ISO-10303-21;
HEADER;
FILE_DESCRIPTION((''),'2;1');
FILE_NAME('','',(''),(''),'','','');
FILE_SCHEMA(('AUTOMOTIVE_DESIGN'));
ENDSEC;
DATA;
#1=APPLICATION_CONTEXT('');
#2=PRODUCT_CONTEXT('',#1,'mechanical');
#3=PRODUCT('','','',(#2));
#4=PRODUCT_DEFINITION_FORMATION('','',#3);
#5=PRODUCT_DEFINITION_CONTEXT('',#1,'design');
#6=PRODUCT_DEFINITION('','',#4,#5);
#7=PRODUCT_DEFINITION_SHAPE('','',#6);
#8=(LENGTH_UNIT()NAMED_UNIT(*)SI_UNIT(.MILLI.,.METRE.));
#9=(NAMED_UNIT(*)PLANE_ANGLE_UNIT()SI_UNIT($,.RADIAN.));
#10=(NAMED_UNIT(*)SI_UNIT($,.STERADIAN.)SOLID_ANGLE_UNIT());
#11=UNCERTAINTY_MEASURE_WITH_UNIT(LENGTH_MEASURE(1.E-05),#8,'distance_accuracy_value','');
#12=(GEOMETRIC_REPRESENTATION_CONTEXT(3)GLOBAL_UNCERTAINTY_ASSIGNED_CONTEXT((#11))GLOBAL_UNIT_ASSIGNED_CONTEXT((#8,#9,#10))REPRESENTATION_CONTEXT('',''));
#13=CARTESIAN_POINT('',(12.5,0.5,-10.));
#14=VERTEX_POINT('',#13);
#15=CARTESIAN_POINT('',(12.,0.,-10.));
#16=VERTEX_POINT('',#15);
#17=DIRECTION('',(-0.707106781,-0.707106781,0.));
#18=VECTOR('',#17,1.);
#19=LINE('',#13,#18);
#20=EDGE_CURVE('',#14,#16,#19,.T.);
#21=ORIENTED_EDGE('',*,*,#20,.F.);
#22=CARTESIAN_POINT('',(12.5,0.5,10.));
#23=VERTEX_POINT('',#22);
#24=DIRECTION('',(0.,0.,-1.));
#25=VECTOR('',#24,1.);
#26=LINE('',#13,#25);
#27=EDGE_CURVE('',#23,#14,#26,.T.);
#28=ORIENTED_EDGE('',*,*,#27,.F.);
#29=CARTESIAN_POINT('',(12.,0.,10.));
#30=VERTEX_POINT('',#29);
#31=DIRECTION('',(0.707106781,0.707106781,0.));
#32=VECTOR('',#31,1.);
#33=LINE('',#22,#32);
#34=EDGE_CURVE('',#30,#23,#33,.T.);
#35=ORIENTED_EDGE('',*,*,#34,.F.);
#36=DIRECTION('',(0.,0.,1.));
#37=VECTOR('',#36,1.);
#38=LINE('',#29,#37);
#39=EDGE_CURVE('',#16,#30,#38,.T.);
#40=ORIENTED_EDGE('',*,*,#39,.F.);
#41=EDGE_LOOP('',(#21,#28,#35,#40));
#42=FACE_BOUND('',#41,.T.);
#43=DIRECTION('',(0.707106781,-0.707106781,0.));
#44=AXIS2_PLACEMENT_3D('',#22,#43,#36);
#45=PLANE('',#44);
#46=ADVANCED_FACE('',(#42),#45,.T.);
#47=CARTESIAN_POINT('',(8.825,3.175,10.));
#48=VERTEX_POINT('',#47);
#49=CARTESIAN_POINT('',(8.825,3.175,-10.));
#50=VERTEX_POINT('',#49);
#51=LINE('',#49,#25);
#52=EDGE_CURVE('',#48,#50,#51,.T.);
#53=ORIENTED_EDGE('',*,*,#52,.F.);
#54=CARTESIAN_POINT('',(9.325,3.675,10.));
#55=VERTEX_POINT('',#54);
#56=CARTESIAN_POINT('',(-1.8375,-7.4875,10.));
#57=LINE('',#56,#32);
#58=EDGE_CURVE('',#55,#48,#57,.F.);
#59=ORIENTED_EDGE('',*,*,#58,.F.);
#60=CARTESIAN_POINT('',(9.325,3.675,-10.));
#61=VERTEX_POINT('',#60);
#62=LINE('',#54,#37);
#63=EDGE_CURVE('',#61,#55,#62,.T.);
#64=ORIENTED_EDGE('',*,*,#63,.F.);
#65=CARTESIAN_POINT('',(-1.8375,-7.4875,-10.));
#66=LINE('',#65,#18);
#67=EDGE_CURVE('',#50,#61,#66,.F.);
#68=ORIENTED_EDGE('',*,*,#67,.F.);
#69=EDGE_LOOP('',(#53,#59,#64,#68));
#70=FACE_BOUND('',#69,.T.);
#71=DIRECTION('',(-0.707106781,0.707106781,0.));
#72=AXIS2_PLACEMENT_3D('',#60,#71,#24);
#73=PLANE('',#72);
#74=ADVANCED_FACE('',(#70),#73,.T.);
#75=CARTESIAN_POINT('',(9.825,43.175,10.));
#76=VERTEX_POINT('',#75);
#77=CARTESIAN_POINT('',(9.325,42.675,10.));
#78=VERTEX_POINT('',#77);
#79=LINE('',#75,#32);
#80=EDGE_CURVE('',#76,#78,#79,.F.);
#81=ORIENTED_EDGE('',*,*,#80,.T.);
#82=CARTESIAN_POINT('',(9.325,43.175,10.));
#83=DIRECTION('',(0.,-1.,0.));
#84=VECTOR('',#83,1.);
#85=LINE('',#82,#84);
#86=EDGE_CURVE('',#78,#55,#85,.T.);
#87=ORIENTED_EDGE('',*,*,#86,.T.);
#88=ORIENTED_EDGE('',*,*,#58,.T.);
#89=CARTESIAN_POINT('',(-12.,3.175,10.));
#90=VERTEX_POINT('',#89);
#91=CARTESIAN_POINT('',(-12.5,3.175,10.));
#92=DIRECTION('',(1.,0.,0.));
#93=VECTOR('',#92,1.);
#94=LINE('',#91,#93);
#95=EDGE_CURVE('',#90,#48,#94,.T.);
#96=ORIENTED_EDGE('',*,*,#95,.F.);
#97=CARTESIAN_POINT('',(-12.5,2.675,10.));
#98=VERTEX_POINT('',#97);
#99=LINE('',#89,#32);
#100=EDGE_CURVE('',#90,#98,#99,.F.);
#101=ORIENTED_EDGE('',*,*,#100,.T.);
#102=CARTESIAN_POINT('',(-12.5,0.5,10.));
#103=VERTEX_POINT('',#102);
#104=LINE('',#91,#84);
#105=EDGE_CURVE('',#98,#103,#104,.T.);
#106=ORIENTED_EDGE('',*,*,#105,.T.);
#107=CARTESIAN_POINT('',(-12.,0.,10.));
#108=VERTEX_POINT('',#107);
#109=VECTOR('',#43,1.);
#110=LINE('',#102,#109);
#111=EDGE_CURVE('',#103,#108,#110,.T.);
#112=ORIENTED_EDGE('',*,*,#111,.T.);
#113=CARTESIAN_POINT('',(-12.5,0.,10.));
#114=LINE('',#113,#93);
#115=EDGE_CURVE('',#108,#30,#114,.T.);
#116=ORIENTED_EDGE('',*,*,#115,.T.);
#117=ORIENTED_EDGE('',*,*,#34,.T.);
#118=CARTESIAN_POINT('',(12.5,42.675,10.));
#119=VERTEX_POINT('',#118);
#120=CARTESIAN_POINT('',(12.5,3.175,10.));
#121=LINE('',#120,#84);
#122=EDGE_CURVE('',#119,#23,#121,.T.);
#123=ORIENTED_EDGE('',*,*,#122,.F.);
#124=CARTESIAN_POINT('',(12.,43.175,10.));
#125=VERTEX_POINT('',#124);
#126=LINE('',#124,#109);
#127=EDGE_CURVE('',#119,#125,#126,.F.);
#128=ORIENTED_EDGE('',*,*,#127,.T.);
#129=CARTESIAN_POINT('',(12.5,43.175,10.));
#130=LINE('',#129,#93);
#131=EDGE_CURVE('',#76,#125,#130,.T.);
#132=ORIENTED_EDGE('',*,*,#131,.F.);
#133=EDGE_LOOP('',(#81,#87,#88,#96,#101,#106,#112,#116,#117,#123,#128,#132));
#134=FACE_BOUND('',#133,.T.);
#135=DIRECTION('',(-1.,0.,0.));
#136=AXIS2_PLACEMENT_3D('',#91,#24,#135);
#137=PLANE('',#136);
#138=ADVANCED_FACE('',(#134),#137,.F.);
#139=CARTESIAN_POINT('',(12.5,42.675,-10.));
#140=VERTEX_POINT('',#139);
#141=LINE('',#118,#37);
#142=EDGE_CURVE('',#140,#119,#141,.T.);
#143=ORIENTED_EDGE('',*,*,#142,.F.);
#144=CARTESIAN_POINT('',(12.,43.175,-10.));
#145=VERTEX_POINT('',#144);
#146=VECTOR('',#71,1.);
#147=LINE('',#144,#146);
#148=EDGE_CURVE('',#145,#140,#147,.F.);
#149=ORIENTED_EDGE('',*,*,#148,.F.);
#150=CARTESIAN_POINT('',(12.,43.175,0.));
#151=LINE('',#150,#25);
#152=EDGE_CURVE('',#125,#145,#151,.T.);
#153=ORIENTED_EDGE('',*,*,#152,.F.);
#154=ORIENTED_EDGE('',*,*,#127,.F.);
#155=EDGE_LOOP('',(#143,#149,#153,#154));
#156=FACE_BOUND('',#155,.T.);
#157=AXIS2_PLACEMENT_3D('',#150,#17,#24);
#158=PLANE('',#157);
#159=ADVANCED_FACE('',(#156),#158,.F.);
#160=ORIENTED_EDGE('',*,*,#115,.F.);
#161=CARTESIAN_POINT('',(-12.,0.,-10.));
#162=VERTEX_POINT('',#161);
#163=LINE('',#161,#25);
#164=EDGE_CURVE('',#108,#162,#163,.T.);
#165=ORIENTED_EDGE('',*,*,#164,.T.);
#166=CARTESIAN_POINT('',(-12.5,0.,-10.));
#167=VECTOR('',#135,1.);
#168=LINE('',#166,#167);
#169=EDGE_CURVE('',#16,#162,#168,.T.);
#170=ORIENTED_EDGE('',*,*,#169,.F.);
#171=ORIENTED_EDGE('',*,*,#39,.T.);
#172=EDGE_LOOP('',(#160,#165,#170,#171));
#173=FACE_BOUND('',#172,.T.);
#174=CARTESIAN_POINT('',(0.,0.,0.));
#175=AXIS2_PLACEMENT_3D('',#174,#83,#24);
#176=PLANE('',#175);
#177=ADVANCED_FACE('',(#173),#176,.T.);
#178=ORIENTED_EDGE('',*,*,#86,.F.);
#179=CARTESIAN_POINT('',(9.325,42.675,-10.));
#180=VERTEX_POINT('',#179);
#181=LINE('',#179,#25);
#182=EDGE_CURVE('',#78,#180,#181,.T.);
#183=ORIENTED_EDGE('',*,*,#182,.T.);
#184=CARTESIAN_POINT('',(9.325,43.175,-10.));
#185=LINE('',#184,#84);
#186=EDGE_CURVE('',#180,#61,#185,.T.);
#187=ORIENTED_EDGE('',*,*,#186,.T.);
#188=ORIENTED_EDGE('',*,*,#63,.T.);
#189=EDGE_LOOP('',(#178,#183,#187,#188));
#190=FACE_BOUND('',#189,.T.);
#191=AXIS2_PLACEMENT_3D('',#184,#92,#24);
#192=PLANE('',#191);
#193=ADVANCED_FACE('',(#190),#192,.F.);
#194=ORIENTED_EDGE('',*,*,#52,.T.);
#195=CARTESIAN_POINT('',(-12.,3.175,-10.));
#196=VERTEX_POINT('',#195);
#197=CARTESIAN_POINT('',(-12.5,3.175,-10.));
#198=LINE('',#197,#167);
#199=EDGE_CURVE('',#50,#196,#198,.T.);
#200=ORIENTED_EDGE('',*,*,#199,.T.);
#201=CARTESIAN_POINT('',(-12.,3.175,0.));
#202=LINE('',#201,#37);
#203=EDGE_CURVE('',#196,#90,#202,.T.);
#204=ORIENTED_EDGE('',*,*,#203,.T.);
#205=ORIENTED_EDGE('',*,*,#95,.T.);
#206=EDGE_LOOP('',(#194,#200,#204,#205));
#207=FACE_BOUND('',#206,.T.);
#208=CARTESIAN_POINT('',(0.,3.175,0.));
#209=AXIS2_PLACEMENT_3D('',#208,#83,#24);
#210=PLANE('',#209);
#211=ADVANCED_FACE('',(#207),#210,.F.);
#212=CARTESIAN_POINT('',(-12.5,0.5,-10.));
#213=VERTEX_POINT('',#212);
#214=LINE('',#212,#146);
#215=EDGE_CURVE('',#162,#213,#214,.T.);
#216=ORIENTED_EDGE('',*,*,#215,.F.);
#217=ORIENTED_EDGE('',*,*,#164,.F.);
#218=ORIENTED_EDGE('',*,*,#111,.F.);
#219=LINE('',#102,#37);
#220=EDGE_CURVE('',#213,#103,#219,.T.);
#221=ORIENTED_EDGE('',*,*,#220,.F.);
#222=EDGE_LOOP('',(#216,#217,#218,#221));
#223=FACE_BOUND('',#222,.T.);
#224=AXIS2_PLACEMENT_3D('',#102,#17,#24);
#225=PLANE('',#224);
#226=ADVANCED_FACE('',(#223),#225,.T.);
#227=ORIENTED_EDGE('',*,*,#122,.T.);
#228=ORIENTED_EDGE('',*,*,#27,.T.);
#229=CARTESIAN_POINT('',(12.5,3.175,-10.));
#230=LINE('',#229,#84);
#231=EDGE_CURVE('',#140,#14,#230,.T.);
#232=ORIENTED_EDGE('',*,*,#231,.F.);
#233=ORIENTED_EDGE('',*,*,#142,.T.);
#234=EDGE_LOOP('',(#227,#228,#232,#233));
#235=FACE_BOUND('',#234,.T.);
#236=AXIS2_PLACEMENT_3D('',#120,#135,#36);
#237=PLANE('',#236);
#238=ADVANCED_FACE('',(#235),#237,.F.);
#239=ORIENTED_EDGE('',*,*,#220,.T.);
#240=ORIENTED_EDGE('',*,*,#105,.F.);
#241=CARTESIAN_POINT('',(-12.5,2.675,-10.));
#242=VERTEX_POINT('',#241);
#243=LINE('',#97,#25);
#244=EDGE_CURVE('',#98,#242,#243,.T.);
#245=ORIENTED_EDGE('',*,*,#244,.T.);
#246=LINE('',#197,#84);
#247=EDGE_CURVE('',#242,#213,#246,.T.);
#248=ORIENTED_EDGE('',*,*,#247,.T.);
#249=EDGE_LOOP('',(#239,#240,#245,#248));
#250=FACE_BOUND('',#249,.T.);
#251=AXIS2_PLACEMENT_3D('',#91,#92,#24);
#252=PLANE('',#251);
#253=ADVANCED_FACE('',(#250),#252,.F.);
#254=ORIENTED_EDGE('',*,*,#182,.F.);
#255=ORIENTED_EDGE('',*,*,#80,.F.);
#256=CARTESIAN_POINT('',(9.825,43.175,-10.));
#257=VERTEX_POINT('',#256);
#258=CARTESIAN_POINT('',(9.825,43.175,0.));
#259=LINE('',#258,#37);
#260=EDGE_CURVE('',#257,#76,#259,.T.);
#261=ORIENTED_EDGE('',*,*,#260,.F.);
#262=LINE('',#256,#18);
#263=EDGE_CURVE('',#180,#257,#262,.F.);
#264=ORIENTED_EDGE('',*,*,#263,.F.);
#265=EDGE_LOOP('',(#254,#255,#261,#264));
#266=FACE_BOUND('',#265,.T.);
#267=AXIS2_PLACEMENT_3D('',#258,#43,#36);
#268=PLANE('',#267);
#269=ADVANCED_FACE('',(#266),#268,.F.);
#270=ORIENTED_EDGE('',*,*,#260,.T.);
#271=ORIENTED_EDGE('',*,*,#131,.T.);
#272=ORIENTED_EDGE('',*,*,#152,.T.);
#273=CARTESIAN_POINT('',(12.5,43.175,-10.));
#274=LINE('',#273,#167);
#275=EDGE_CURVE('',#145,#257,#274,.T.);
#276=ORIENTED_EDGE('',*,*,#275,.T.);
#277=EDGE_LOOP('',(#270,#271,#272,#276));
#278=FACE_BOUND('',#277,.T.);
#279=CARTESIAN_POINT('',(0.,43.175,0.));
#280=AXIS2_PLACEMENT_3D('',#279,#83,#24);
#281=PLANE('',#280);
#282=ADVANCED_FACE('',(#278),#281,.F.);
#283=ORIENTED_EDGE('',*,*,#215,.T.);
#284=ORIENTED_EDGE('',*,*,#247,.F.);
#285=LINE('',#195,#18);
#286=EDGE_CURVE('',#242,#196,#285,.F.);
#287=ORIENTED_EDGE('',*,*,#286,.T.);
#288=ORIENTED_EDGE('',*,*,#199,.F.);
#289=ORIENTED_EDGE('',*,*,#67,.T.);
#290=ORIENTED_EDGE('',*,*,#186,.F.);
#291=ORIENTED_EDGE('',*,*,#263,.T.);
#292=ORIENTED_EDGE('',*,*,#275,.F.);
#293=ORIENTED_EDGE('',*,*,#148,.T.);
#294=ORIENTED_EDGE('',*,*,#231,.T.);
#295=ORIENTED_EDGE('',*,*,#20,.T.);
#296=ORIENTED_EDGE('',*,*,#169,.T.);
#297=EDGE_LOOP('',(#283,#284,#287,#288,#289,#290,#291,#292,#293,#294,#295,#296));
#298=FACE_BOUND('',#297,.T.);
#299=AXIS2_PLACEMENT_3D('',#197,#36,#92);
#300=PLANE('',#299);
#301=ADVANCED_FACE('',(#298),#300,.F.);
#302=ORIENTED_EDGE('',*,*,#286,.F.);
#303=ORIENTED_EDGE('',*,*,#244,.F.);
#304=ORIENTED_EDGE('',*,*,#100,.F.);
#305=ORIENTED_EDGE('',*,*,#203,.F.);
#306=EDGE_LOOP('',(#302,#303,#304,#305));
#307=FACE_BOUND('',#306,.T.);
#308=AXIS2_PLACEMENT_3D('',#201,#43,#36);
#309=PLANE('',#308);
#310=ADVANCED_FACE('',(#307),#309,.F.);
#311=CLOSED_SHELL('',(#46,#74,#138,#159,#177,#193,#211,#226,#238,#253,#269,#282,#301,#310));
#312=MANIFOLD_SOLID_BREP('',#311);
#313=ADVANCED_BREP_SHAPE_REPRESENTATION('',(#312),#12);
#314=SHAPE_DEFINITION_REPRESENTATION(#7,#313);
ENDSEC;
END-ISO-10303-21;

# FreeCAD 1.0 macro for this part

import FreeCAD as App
import Part
import Sketcher


def edges_at(feature, points):
    """Names of the edges that pass closest to the given points."""
    edges = feature.Shape.Edges
    near = lambda p: min(range(len(edges)), key=lambda i: edges[i].distToShape(Part.Vertex(*p))[0])
    return sorted({f"Edge{near(p) + 1}" for p in points})

doc = App.newDocument("Part")
body = doc.addObject("PartDesign::Body", "Body")

# Sketch on XZ plane
sketch1 = body.newObject("Sketcher::SketchObject", "Sketch")
sketch1.AttachmentSupport = (doc.getObject("XZ_Plane"), [""])
sketch1.MapMode = "FlatFace"
sketch1.addGeometry(Part.LineSegment(App.Vector(-12, -10, 0), App.Vector(-12, 10, 0)), False)
sketch1.addGeometry(Part.LineSegment(App.Vector(-12, 10, 0), App.Vector(12, 10, 0)), False)
sketch1.addGeometry(Part.LineSegment(App.Vector(12, 10, 0), App.Vector(12, -10, 0)), False)
sketch1.addGeometry(Part.LineSegment(App.Vector(12, -10, 0), App.Vector(-12, -10, 0)), False)
sketch1.addConstraint(Sketcher.Constraint("Coincident", 0, 2, 1, 1))
sketch1.addConstraint(Sketcher.Constraint("Coincident", 1, 2, 2, 1))
sketch1.addConstraint(Sketcher.Constraint("Coincident", 2, 2, 3, 1))
sketch1.addConstraint(Sketcher.Constraint("Coincident", 3, 2, 0, 1))
sketch1.addConstraint(Sketcher.Constraint("Vertical", 0))
sketch1.addConstraint(Sketcher.Constraint("Horizontal", 1))
sketch1.addConstraint(Sketcher.Constraint("Vertical", 2))
sketch1.addConstraint(Sketcher.Constraint("Horizontal", 3))
sketch1.addConstraint(Sketcher.Constraint("Symmetric", 0, 2, 2, 2, -1, 1))
sketch1.addConstraint(Sketcher.Constraint("DistanceX", 1, 1, 1, 2, 25.0))
sketch1.addConstraint(Sketcher.Constraint("DistanceY", 0, 1, 0, 2, 20.0))
pad1 = body.newObject("PartDesign::Pad", "Pad")
pad1.Profile = sketch1
pad1.Length = 3.175
pad1.Reversed = True

# Sketch on XZ plane
sketch2 = body.newObject("Sketcher::SketchObject", "Sketch001")
sketch2.AttachmentSupport = (doc.getObject("XZ_Plane"), [""])
sketch2.MapMode = "FlatFace"
sketch2.AttachmentOffset = App.Placement(App.Vector(0, 0, -3.175), App.Rotation())
sketch2.addGeometry(Part.LineSegment(App.Vector(9.3, -10, 0), App.Vector(9.3, 10, 0)), False)
sketch2.addGeometry(Part.LineSegment(App.Vector(9.3, 10, 0), App.Vector(12.5, 10, 0)), False)
sketch2.addGeometry(Part.LineSegment(App.Vector(12.5, 10, 0), App.Vector(12.5, -10, 0)), False)
sketch2.addGeometry(Part.LineSegment(App.Vector(12.5, -10, 0), App.Vector(9.3, -10, 0)), False)
sketch2.addConstraint(Sketcher.Constraint("Coincident", 0, 2, 1, 1))
sketch2.addConstraint(Sketcher.Constraint("Coincident", 1, 2, 2, 1))
sketch2.addConstraint(Sketcher.Constraint("Coincident", 2, 2, 3, 1))
sketch2.addConstraint(Sketcher.Constraint("Coincident", 3, 2, 0, 1))
sketch2.addConstraint(Sketcher.Constraint("Vertical", 0))
sketch2.addConstraint(Sketcher.Constraint("Horizontal", 1))
sketch2.addConstraint(Sketcher.Constraint("Vertical", 2))
sketch2.addConstraint(Sketcher.Constraint("Horizontal", 3))
sketch2.addConstraint(Sketcher.Constraint("DistanceY", 0, 1, 0, 2, 20.0))
sketch2.addConstraint(Sketcher.Constraint("DistanceY", -1, 1, 0, 2, 10.0))
sketch2.addConstraint(Sketcher.Constraint("DistanceX", -1, 1, 1, 2, 12.5))
sketch2.addConstraint(Sketcher.Constraint("DistanceX", 1, 1, 1, 2, 3.175))
pad2 = body.newObject("PartDesign::Pad", "Pad001")
pad2.Profile = sketch2
pad2.Length = 40
pad2.Reversed = True
doc.recompute()

chamfer = body.newObject("PartDesign::Chamfer", "Chamfer")
chamfer.Base = (pad2, edges_at(pad2, [
    (-12.5, 3.175, 0),
    (9.325, 3.175, 0),
    (12.5, 43.175, 0),
    (9.325, 43.175, 0),
    (-12.5, 0, 0),
    (12.5, 0, 0),
]))
chamfer.Size = 0.5

doc.recompute()
